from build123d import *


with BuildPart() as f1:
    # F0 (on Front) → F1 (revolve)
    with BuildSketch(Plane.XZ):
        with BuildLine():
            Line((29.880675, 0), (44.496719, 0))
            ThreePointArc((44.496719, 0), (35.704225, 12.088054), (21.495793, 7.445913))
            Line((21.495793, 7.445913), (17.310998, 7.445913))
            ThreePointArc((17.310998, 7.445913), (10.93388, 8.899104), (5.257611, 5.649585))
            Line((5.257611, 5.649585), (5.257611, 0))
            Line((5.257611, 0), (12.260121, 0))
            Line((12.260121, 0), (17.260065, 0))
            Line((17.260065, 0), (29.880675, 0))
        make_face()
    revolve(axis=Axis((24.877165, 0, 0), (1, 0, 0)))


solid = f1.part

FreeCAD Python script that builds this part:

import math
import FreeCAD as App
import Part
import Sketcher
from FreeCAD import Vector
Q = App.Units.Quantity

doc = App.newDocument("Part")
body = doc.addObject("PartDesign::Body", "Body")

# Sketch on XZ plane
sketch1 = body.newObject("Sketcher::SketchObject", "Sketch")
sketch1.AttachmentSupport = (doc.getObject("XZ_Plane"), [""])
sketch1.MapMode = "FlatFace"
sketch1.addGeometry([
    Part.ArcOfCircle(Part.Circle(Vector(31.8, 0, 0), Vector(0, 0, 1), 12.7), math.radians(0), math.radians(144)),  # 0
    Part.LineSegment(Vector(21.5, 7.4, 0), Vector(17.3, 7.4, 0)),  # 1
    Part.ArcOfCircle(Part.Circle(Vector(12.3, 0, 0), Vector(0, 0, 1), 9), math.radians(56), math.radians(141)),  # 2
    Part.LineSegment(Vector(5.3, 5.6, 0), Vector(5.3, 0, 0)),  # 3
    Part.LineSegment(Vector(5.3, 0, 0), Vector(44.5, 0, 0)),  # 4
], False)
sketch1.addConstraint([
    Sketcher.Constraint("Coincident", 0, 2, 1, 1),
    Sketcher.Constraint("Coincident", 1, 2, 2, 1),
    Sketcher.Constraint("Coincident", 2, 2, 3, 1),
    Sketcher.Constraint("Coincident", 3, 2, 4, 1),
    Sketcher.Constraint("Coincident", 4, 2, 0, 1),
    Sketcher.Constraint("Horizontal", 1),
    Sketcher.Constraint("Vertical", 3),
    Sketcher.Constraint("Horizontal", 4),
    Sketcher.Constraint("PointOnObject", 0, 3, -1),
    Sketcher.Constraint("PointOnObject", 2, 3, -1),
    Sketcher.Constraint("PointOnObject", 3, 2, -1),
    Sketcher.Constraint("DistanceX", -1, 1, 1, 2, Q("17.310998 mm")),
    Sketcher.Constraint("Radius", 0, Q("12.705667 mm")),
    Sketcher.Constraint("Radius", 2, Q("8.997387 mm")),
    Sketcher.Constraint("DistanceX", 4, 1, 4, 2, Q("39.239108 mm")),
    Sketcher.Constraint("DistanceX", 1, 2, 1, 1, Q("4.184795 mm")),
    Sketcher.Constraint("DistanceY", 3, 2, 3, 1, Q("5.649585 mm")),
])
revolution = body.newObject("PartDesign::Revolution", "Revolution")
revolution.Profile = sketch1
revolution.ReferenceAxis = (sketch1, ["H_Axis"])
revolution.Angle = 360

doc.recompute()
